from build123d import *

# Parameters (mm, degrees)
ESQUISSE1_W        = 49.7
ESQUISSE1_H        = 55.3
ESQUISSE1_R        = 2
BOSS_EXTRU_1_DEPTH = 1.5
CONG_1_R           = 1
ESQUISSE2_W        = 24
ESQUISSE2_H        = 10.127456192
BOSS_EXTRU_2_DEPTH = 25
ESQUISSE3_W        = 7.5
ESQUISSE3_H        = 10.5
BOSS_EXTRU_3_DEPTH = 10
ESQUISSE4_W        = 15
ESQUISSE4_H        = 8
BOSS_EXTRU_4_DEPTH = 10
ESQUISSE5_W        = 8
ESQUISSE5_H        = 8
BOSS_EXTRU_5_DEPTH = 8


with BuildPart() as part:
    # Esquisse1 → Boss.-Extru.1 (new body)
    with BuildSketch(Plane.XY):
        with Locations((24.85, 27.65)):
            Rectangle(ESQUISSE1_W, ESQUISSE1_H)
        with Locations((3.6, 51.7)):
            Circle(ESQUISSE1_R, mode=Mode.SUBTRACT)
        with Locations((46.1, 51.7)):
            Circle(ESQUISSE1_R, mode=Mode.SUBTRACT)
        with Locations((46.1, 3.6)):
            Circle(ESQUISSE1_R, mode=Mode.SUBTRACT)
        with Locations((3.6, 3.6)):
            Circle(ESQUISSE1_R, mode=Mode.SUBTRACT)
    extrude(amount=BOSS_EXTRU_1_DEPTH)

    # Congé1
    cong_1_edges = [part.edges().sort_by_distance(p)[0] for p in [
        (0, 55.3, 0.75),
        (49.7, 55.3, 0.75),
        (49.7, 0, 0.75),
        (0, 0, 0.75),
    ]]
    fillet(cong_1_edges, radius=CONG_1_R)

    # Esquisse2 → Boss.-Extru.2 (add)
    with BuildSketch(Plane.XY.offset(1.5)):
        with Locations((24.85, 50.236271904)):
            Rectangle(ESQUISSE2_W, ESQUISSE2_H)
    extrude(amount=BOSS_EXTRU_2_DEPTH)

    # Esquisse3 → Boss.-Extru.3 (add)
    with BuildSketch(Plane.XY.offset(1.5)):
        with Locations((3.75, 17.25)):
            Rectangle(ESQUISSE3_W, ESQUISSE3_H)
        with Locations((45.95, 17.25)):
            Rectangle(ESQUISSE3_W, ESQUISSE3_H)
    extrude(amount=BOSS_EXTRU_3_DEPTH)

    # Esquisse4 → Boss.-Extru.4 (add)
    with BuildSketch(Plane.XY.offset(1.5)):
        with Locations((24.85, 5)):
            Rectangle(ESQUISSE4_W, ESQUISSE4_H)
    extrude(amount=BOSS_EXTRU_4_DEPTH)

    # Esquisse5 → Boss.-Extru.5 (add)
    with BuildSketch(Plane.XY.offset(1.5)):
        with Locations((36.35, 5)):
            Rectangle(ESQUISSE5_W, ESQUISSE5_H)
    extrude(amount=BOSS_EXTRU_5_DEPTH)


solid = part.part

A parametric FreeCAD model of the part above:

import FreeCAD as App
import Part
import Sketcher
Q = App.Units.Quantity


def edges_at(feature, points):
    """Names of the edges that pass closest to the given points."""
    edges = feature.Shape.Edges
    near = lambda p: min(range(len(edges)), key=lambda i: edges[i].distToShape(Part.Vertex(*p))[0])
    return sorted({f"Edge{near(p) + 1}" for p in points})


def add_polygon(sketch, points):
    """Adds a closed chain of lines whose ends are joined by coincident constraints."""
    first, n = sketch.GeometryCount, len(points)
    for a, b in zip(points, points[1:] + points[:1]):
        sketch.addGeometry(Part.LineSegment(App.Vector(*a, 0), App.Vector(*b, 0)), False)
    for i in range(n):
        sketch.addConstraint(Sketcher.Constraint("Coincident", first + i, 2, first + (i + 1) % n, 1))

doc = App.newDocument("Part")
params = doc.addObject("Spreadsheet::Sheet", "Params")
for row, (alias, value) in enumerate([
    ("sketch1_diameter", "4 mm"),
    ("sketch1_width", "49.7 mm"),
    ("sketch1_height", "55.3 mm"),
    ("pad1_length", "1.5 mm"),
    ("fillet_radius", "1 mm"),
    ("sketch2_width", "24 mm"),
    ("pad2_length", "25 mm"),
    ("sketch3_width", "7.5 mm"),
    ("sketch3_height", "10.5 mm"),
    ("pad3_length", "10 mm"),
    ("sketch4_width", "15 mm"),
    ("sketch4_height", "8 mm"),
    ("pad4_length", "10 mm"),
    ("sketch5_width", "8 mm"),
    ("pad5_length", "8 mm"),
], start=1):
    params.set(f"A{row}", alias)
    params.set(f"B{row}", "=" + value)
    params.setAlias(f"B{row}", alias)

body = doc.addObject("PartDesign::Body", "Body")

# Sketch on XY plane
sketch1 = doc.addObject("Sketcher::SketchObject", "Sketch")
body.addObject(sketch1)
sketch1.AttachmentSupport = (doc.XY_Plane, [""])
sketch1.MapMode = "FlatFace"
add_polygon(sketch1, [(0, 55.3), (0, 0), (49.7, 0), (49.7, 55.3)])  # lines 0-3
sketch1.addGeometry(Part.Circle(App.Vector(3.6, 3.6, 0), App.Vector(0, 0, 1), 2), False)  # 4
sketch1.addGeometry(Part.Circle(App.Vector(46.1, 3.6, 0), App.Vector(0, 0, 1), 2), False)  # 5
sketch1.addGeometry(Part.Circle(App.Vector(3.6, 51.7, 0), App.Vector(0, 0, 1), 2), False)  # 6
sketch1.addGeometry(Part.Circle(App.Vector(46.1, 51.7, 0), App.Vector(0, 0, 1), 2), False)  # 7
sketch1.addConstraint([
    Sketcher.Constraint("Vertical", 0),
    Sketcher.Constraint("Horizontal", 1),
    Sketcher.Constraint("Vertical", 2),
    Sketcher.Constraint("Horizontal", 3),
    Sketcher.Constraint("Coincident", 0, 2, -1, 1),
    Sketcher.Constraint("Equal", 4, 5),
    Sketcher.Constraint("Equal", 5, 6),
    Sketcher.Constraint("Equal", 6, 7),
    Sketcher.Constraint("Horizontal", 4, 3, 5, 3),
    Sketcher.Constraint("Horizontal", 6, 3, 7, 3),
    Sketcher.Constraint("Vertical", 4, 3, 6, 3),
    Sketcher.Constraint("Vertical", 5, 3, 7, 3),
    Sketcher.Constraint("Diameter", 4, Q("4 mm")),
    Sketcher.Constraint("DistanceX", 1, 1, 1, 2, Q("49.7 mm")),
    Sketcher.Constraint("DistanceY", 0, 2, 0, 1, Q("55.3 mm")),
    Sketcher.Constraint("DistanceX", -1, 1, 4, 3, Q("3.6 mm")),
    Sketcher.Constraint("DistanceY", -1, 1, 4, 3, Q("3.6 mm")),
    Sketcher.Constraint("DistanceX", -1, 1, 5, 3, Q("46.1 mm")),
    Sketcher.Constraint("DistanceY", -1, 1, 6, 3, Q("51.7 mm")),
])
sketch1.setExpression("Constraints[16]", "Params.sketch1_diameter")
sketch1.setExpression("Constraints[17]", "Params.sketch1_width")
sketch1.setExpression("Constraints[18]", "Params.sketch1_height")
pad1 = doc.addObject("PartDesign::Pad", "Pad")
body.addObject(pad1)
pad1.Profile = sketch1
pad1.setExpression("Length", "Params.pad1_length")
doc.recompute()

fillet = doc.addObject("PartDesign::Fillet", "Fillet")
body.addObject(fillet)
fillet.Base = (pad1, edges_at(pad1, [
    (0, 55.3, 0.75),
    (49.7, 55.3, 0.75),
    (49.7, 0, 0.75),
    (0, 0, 0.75),
]))
fillet.setExpression("Radius", "Params.fillet_radius")

# Sketch on XY plane
sketch2 = doc.addObject("Sketcher::SketchObject", "Sketch001")
body.addObject(sketch2)
sketch2.AttachmentSupport = (doc.XY_Plane, [""])
sketch2.MapMode = "FlatFace"
sketch2.AttachmentOffset = App.Placement(App.Vector(0, 0, 1.5), App.Rotation())
add_polygon(sketch2, [(12.85, 55.3), (12.85, 45.172544), (36.85, 45.172544), (36.85, 55.3)])  # lines 0-3
sketch2.addConstraint([
    Sketcher.Constraint("Vertical", 0),
    Sketcher.Constraint("Horizontal", 1),
    Sketcher.Constraint("Vertical", 2),
    Sketcher.Constraint("Horizontal", 3),
    Sketcher.Constraint("DistanceX", 1, 1, 1, 2, Q("24 mm")),
    Sketcher.Constraint("DistanceY", -1, 1, 2, 2, Q("55.3 mm")),
    Sketcher.Constraint("DistanceX", -1, 1, 0, 2, Q("12.85 mm")),
    Sketcher.Constraint("DistanceY", 0, 2, 0, 1, Q("10.127456 mm")),
])
sketch2.setExpression("Constraints[8]", "Params.sketch2_width")
pad2 = doc.addObject("PartDesign::Pad", "Pad001")
body.addObject(pad2)
pad2.Profile = sketch2
pad2.setExpression("Length", "Params.pad2_length")

# Sketch on XY plane
sketch3 = doc.addObject("Sketcher::SketchObject", "Sketch002")
body.addObject(sketch3)
sketch3.AttachmentSupport = (doc.XY_Plane, [""])
sketch3.MapMode = "FlatFace"
sketch3.AttachmentOffset = App.Placement(App.Vector(0, 0, 1.5), App.Rotation())
add_polygon(sketch3, [(0, 22.5), (0, 12), (7.5, 12), (7.5, 22.5)])  # lines 0-3
add_polygon(sketch3, [(42.2, 22.5), (42.2, 12), (49.7, 12), (49.7, 22.5)])  # lines 4-7
sketch3.addConstraint([
    Sketcher.Constraint("Vertical", 0),
    Sketcher.Constraint("Horizontal", 1),
    Sketcher.Constraint("Vertical", 2),
    Sketcher.Constraint("Horizontal", 3),
    Sketcher.Constraint("Vertical", 4),
    Sketcher.Constraint("Horizontal", 5),
    Sketcher.Constraint("Vertical", 6),
    Sketcher.Constraint("Horizontal", 7),
    Sketcher.Constraint("PointOnObject", 0, 2, -2),
    Sketcher.Constraint("Horizontal", 1, 2, 4, 2),
    Sketcher.Constraint("Horizontal", 3, 2, 6, 2),
    Sketcher.Constraint("Equal", 3, 5),
    Sketcher.Constraint("DistanceX", 1, 1, 1, 2, Q("7.5 mm")),
    Sketcher.Constraint("DistanceY", 0, 2, 0, 1, Q("10.5 mm")),
    Sketcher.Constraint("DistanceY", -1, 1, 0, 2, Q("12 mm")),
    Sketcher.Constraint("DistanceX", -1, 1, 4, 2, Q("42.2 mm")),
])
sketch3.setExpression("Constraints[20]", "Params.sketch3_width")
sketch3.setExpression("Constraints[21]", "Params.sketch3_height")
pad3 = doc.addObject("PartDesign::Pad", "Pad002")
body.addObject(pad3)
pad3.Profile = sketch3
pad3.setExpression("Length", "Params.pad3_length")

# Sketch on XY plane
sketch4 = doc.addObject("Sketcher::SketchObject", "Sketch003")
body.addObject(sketch4)
sketch4.AttachmentSupport = (doc.XY_Plane, [""])
sketch4.MapMode = "FlatFace"
sketch4.AttachmentOffset = App.Placement(App.Vector(0, 0, 1.5), App.Rotation())
add_polygon(sketch4, [(17.35, 9), (17.35, 1), (32.35, 1), (32.35, 9)])  # lines 0-3
sketch4.addConstraint([
    Sketcher.Constraint("Vertical", 0),
    Sketcher.Constraint("Horizontal", 1),
    Sketcher.Constraint("Vertical", 2),
    Sketcher.Constraint("Horizontal", 3),
    Sketcher.Constraint("DistanceX", 1, 1, 1, 2, Q("15 mm")),
    Sketcher.Constraint("DistanceY", 0, 2, 0, 1, Q("8 mm")),
    Sketcher.Constraint("DistanceY", -1, 1, 0, 2, Q("1 mm")),
    Sketcher.Constraint("DistanceX", -1, 1, 0, 2, Q("17.35 mm")),
])
sketch4.setExpression("Constraints[8]", "Params.sketch4_width")
sketch4.setExpression("Constraints[9]", "Params.sketch4_height")
pad4 = doc.addObject("PartDesign::Pad", "Pad003")
body.addObject(pad4)
pad4.Profile = sketch4
pad4.setExpression("Length", "Params.pad4_length")

# Sketch on XY plane
sketch5 = doc.addObject("Sketcher::SketchObject", "Sketch004")
body.addObject(sketch5)
sketch5.AttachmentSupport = (doc.XY_Plane, [""])
sketch5.MapMode = "FlatFace"
sketch5.AttachmentOffset = App.Placement(App.Vector(0, 0, 1.5), App.Rotation())
add_polygon(sketch5, [(32.35, 9), (32.35, 1), (40.35, 1), (40.35, 9)])  # lines 0-3
sketch5.addConstraint([
    Sketcher.Constraint("Vertical", 0),
    Sketcher.Constraint("Horizontal", 1),
    Sketcher.Constraint("Vertical", 2),
    Sketcher.Constraint("Horizontal", 3),
    Sketcher.Constraint("Equal", 3, 0),
    Sketcher.Constraint("DistanceX", 1, 1, 1, 2, Q("8 mm")),
    Sketcher.Constraint("DistanceY", -1, 1, 0, 2, Q("1 mm")),
    Sketcher.Constraint("DistanceX", -1, 1, 0, 2, Q("32.35 mm")),
])
sketch5.setExpression("Constraints[9]", "Params.sketch5_width")
pad5 = doc.addObject("PartDesign::Pad", "Pad004")
body.addObject(pad5)
pad5.Profile = sketch5
pad5.setExpression("Length", "Params.pad5_length")

doc.recompute()
